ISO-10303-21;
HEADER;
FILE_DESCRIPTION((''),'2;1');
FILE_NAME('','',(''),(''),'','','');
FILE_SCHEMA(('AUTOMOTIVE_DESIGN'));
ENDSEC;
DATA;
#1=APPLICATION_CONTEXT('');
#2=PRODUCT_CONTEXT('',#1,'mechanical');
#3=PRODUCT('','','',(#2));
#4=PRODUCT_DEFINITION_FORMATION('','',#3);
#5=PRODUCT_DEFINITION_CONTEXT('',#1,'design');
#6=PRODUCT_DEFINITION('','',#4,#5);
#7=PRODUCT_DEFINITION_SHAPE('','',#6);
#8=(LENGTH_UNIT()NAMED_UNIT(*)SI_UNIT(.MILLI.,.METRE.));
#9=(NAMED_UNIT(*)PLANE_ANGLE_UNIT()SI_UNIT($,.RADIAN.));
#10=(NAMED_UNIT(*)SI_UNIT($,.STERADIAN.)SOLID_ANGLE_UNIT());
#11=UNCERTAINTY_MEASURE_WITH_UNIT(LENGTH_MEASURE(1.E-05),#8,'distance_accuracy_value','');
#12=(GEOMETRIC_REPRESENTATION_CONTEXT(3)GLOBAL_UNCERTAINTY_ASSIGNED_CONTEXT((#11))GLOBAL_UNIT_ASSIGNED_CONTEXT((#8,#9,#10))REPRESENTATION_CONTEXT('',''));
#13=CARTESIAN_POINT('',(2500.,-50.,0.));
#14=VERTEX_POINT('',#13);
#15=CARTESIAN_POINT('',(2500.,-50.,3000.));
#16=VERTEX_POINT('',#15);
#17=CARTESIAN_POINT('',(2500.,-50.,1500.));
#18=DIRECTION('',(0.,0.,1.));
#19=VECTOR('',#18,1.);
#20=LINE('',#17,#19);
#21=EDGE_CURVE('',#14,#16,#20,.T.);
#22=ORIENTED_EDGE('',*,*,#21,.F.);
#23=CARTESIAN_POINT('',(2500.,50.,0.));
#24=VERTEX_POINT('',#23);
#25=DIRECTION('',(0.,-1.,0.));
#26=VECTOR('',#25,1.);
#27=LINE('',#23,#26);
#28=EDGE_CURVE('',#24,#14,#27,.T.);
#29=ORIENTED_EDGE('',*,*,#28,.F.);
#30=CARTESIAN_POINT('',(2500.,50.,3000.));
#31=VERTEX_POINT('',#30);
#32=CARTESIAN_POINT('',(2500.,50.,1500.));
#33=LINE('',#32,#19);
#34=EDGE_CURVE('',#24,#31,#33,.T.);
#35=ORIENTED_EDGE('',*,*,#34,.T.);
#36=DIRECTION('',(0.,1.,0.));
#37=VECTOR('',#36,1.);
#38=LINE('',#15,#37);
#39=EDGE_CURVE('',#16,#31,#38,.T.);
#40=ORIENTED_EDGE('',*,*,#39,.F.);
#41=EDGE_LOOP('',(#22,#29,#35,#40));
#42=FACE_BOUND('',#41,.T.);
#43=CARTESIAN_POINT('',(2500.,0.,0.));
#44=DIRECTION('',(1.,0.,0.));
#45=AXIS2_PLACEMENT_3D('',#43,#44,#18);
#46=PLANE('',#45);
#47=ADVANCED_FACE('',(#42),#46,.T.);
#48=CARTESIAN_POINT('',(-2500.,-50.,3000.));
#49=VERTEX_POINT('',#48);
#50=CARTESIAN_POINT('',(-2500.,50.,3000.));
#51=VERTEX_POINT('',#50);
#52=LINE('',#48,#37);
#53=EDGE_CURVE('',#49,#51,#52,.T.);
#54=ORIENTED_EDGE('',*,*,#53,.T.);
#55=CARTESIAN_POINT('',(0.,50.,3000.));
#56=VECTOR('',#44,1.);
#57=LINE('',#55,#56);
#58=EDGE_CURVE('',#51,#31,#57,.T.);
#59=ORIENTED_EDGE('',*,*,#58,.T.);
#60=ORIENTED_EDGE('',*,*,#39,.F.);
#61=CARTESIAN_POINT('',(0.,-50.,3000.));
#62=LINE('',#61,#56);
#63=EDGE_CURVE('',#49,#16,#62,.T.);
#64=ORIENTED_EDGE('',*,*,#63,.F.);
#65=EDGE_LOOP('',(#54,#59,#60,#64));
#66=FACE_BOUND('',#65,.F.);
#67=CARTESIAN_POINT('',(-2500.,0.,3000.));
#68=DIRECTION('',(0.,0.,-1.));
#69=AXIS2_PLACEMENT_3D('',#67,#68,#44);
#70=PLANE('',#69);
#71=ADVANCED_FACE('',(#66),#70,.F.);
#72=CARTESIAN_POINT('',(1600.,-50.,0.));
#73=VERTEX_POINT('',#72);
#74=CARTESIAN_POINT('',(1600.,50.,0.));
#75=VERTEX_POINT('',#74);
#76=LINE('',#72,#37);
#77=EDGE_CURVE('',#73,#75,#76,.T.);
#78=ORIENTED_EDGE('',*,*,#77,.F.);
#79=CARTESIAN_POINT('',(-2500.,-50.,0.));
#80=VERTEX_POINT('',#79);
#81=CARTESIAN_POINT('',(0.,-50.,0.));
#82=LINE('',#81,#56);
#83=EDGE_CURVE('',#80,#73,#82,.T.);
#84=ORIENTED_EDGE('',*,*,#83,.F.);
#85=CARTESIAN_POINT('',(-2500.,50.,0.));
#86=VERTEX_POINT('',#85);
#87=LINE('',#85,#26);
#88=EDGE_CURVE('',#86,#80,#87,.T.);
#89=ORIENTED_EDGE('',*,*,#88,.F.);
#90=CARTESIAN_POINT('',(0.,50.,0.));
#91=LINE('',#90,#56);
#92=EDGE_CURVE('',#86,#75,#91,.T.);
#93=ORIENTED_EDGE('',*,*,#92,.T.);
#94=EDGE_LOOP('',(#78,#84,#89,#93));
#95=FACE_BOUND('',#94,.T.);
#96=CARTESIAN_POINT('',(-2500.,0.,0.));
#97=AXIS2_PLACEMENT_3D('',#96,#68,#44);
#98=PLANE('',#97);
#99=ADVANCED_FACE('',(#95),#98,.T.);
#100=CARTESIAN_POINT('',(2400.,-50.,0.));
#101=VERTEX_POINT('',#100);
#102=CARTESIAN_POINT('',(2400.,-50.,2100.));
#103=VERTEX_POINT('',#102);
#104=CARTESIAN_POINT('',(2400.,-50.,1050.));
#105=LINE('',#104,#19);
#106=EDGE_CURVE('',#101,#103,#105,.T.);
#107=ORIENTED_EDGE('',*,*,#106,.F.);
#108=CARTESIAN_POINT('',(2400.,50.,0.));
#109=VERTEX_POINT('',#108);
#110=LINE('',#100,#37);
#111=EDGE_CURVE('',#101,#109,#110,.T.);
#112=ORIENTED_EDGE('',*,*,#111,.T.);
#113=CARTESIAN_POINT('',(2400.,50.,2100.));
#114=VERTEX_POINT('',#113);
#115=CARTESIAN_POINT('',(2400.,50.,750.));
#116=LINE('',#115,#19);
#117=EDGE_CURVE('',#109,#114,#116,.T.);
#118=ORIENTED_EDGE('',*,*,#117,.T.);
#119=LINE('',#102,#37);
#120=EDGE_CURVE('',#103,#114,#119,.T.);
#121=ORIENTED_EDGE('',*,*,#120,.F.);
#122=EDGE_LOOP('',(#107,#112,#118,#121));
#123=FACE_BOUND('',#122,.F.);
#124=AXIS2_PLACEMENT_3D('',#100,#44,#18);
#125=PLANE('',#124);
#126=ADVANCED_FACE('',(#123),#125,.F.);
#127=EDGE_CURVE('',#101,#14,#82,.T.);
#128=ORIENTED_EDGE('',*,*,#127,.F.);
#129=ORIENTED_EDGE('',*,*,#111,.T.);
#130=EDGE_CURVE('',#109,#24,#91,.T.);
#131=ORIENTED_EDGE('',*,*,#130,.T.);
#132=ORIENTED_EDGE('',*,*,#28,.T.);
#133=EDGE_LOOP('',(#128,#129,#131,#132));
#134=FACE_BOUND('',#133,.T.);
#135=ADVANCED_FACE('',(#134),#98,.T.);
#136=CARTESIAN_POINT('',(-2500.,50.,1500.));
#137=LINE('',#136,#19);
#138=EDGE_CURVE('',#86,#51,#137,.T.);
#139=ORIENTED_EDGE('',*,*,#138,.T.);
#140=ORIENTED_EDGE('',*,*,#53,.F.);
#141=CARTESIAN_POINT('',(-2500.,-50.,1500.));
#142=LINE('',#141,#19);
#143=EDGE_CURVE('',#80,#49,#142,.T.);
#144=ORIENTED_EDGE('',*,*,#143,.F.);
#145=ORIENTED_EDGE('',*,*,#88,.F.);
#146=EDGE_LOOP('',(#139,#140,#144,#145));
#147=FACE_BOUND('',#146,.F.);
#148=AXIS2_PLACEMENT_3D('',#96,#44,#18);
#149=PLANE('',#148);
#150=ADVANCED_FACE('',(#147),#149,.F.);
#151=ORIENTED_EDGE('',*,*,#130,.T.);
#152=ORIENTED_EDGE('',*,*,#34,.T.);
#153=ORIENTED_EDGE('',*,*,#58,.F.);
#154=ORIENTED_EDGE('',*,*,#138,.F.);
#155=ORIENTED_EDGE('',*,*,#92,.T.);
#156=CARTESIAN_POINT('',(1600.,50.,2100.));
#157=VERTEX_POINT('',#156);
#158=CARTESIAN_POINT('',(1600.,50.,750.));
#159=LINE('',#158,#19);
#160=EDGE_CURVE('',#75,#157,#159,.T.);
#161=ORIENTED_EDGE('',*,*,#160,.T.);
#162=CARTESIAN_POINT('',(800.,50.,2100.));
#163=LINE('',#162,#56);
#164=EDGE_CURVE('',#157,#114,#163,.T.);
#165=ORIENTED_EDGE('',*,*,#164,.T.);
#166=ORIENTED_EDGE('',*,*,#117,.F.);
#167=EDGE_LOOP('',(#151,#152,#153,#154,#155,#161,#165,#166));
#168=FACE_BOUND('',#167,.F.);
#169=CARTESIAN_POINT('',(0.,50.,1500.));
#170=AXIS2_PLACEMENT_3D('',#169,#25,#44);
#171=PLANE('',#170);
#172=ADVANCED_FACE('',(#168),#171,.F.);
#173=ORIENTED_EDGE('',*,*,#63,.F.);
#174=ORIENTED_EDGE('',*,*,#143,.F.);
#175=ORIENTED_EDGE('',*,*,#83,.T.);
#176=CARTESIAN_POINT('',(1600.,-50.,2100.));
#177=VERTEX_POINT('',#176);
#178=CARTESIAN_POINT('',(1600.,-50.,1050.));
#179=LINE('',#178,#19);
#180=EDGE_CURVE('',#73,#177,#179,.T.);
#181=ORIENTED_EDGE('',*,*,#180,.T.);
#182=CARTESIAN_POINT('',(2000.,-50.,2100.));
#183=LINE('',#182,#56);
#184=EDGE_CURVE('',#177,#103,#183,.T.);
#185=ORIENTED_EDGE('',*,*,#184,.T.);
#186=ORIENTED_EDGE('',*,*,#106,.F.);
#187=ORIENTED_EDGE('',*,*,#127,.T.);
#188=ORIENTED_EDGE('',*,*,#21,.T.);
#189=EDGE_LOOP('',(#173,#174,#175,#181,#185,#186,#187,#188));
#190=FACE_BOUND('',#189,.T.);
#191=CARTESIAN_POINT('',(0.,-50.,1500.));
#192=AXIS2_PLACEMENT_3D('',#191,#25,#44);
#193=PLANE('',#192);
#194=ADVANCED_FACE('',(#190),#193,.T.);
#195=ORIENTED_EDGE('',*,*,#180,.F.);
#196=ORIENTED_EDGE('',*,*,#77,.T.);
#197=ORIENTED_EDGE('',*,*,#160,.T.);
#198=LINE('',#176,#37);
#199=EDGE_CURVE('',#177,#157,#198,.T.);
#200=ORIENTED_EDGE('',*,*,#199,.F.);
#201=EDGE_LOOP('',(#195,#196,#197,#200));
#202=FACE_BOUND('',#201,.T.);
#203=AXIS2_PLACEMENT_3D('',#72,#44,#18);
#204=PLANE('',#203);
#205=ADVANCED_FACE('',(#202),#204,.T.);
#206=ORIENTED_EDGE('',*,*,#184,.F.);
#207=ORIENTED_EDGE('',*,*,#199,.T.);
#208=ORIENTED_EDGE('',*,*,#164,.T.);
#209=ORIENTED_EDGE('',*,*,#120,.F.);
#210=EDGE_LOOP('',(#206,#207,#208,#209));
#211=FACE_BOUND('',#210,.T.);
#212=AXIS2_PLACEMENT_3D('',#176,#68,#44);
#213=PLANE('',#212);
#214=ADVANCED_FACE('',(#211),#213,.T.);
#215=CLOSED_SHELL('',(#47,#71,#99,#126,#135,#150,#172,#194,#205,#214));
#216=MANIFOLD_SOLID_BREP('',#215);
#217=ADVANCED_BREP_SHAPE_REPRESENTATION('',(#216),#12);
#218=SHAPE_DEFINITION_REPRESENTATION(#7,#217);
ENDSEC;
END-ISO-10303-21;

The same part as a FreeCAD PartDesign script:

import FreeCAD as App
import Part
import Sketcher


def add_polygon(sketch, points):
    """Adds a closed chain of lines whose ends are joined by coincident constraints."""
    first, n = sketch.GeometryCount, len(points)
    for a, b in zip(points, points[1:] + points[:1]):
        sketch.addGeometry(Part.LineSegment(App.Vector(*a, 0), App.Vector(*b, 0)), False)
    for i in range(n):
        sketch.addConstraint(Sketcher.Constraint("Coincident", first + i, 2, first + (i + 1) % n, 1))

doc = App.newDocument("Part")
body = doc.addObject("PartDesign::Body", "Body")

sketch1 = body.newObject("Sketcher::SketchObject", "Sketch")
sketch1.AttachmentSupport = (doc.getObject("XZ_Plane"), [""])
sketch1.MapMode = "FlatFace"
add_polygon(sketch1, [(-2500, 3000), (-2500, 0), (2500, 0), (2500, 3000)])
sketch1.addConstraint([
    Sketcher.Constraint("Vertical", 0),
    Sketcher.Constraint("Horizontal", 1),
    Sketcher.Constraint("Vertical", 2),
    Sketcher.Constraint("Horizontal", 3),
    Sketcher.Constraint("Symmetric", 0, 2, 1, 2, -1, 1),
    Sketcher.Constraint("DistanceX", 1, 1, 1, 2, 5000.0),
    Sketcher.Constraint("DistanceY", 0, 2, 0, 1, 3000.0),
])
pad1 = body.newObject("PartDesign::Pad", "Pad")
pad1.Profile = sketch1
pad1.Length = 100
pad1.Midplane = True

sketch2 = body.newObject("Sketcher::SketchObject", "Sketch001")
sketch2.AttachmentSupport = (doc.getObject("XZ_Plane"), [""])
sketch2.MapMode = "FlatFace"
sketch2.AttachmentOffset = App.Placement(App.Vector(0, 0, 50), App.Rotation())
add_polygon(sketch2, [(1600, 2100), (1600, 0), (2400, 0), (2400, 2100)])
sketch2.addConstraint([
    Sketcher.Constraint("Vertical", 0),
    Sketcher.Constraint("Horizontal", 1),
    Sketcher.Constraint("Vertical", 2),
    Sketcher.Constraint("Horizontal", 3),
    Sketcher.Constraint("PointOnObject", 0, 2, -1),
    Sketcher.Constraint("DistanceX", 1, 1, 1, 2, 800.0),
    Sketcher.Constraint("DistanceY", 0, 2, 0, 1, 2100.0),
    Sketcher.Constraint("DistanceX", -1, 1, 0, 2, 1600.0),
])
pocket1 = body.newObject("PartDesign::Pocket", "Pocket")
pocket1.Profile = sketch2
pocket1.Type = "ThroughAll"

doc.recompute()
